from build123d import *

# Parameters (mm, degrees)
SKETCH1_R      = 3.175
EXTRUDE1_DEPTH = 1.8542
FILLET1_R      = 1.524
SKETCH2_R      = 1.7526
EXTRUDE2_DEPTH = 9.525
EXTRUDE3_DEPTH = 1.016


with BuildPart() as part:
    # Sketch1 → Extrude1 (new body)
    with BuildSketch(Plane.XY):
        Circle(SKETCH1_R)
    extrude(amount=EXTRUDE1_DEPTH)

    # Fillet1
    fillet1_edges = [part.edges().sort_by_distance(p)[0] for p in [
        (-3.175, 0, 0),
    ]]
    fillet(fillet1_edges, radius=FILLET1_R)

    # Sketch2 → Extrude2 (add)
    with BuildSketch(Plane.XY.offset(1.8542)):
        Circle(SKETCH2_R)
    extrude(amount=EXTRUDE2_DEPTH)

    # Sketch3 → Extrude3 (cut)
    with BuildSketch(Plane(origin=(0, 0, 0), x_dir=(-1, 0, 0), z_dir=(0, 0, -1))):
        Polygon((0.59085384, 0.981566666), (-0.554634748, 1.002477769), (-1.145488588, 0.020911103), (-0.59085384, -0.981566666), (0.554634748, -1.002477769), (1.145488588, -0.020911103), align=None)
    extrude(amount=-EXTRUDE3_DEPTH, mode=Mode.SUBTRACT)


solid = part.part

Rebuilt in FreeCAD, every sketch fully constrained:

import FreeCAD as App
import Part
import Sketcher

V = App.Vector
Q = App.Units.Quantity


def edges_at(feature, points):
    """Names of the edges that pass closest to the given points."""
    edges = feature.Shape.Edges
    near = lambda p: min(range(len(edges)), key=lambda i: edges[i].distToShape(Part.Vertex(*p))[0])
    return sorted({f"Edge{near(p) + 1}" for p in points})

doc = App.newDocument("Part")
params = doc.addObject("Spreadsheet::Sheet", "Params")
for row, (alias, value) in enumerate([
    ("sketch1_diameter", "0.25 in"),
    ("pad1_length", "0.073 in"),
    ("fillet_radius", "0.06 in"),
    ("sketch2_diameter", "0.138 in"),
    ("pad2_length", "0.375 in"),
    ("pocket1_length", "0.04 in"),
], start=1):
    params.set(f"A{row}", alias)
    params.set(f"B{row}", "=" + value)
    params.setAlias(f"B{row}", alias)

body = doc.addObject("PartDesign::Body", "Body")

# Sketch on XY plane
sketch1 = body.newObject("Sketcher::SketchObject", "Sketch")
sketch1.AttachmentSupport = (doc.getObject("XY_Plane"), [""])
sketch1.MapMode = "FlatFace"
sketch1.addGeometry(Part.Circle(V(0, 0, 0), V(0, 0, 1), 3.175), False)
sketch1.addConstraint(Sketcher.Constraint("Coincident", 0, 3, -1, 1))
sketch1.addConstraint(Sketcher.Constraint("Diameter", 0, Q("0.25 in")))
sketch1.setExpression("Constraints[1]", "Params.sketch1_diameter")
pad1 = body.newObject("PartDesign::Pad", "Pad")
pad1.Profile = sketch1
pad1.setExpression("Length", "Params.pad1_length")
doc.recompute()

fillet = body.newObject("PartDesign::Fillet", "Fillet")
fillet.Base = (pad1, edges_at(pad1, [(-3.175, 0, 0)]))
fillet.setExpression("Radius", "Params.fillet_radius")

# Sketch on XY plane
sketch2 = body.newObject("Sketcher::SketchObject", "Sketch001")
sketch2.AttachmentSupport = (doc.getObject("XY_Plane"), [""])
sketch2.MapMode = "FlatFace"
sketch2.AttachmentOffset = App.Placement(V(0, 0, 0.073 * 25.4), App.Rotation())
sketch2.addGeometry(Part.Circle(V(0, 0, 0), V(0, 0, 1), 1.7526), False)
sketch2.addConstraint(Sketcher.Constraint("Coincident", 0, 3, -1, 1))
sketch2.addConstraint(Sketcher.Constraint("Diameter", 0, Q("0.138 in")))
sketch2.setExpression("Constraints[1]", "Params.sketch2_diameter")
pad2 = body.newObject("PartDesign::Pad", "Pad001")
pad2.Profile = sketch2
pad2.setExpression("Length", "Params.pad2_length")

# Sketch on XY plane
sketch3 = body.newObject("Sketcher::SketchObject", "Sketch002")
sketch3.AttachmentSupport = (doc.getObject("XY_Plane"), [""])
sketch3.MapMode = "FlatFace"
sketch3.addGeometry(Part.LineSegment(V(-0.590854, 0.981567, 0), V(0.554635, 1.002478, 0)), False)
sketch3.addGeometry(Part.LineSegment(V(0.554635, 1.002478, 0), V(1.145489, 0.020911, 0)), False)
sketch3.addGeometry(Part.LineSegment(V(1.145489, 0.020911, 0), V(0.590854, -0.981567, 0)), False)
sketch3.addGeometry(Part.LineSegment(V(0.590854, -0.981567, 0), V(-0.554635, -1.002478, 0)), False)
sketch3.addGeometry(Part.LineSegment(V(-0.554635, -1.002478, 0), V(-1.145489, -0.020911, 0)), False)
sketch3.addGeometry(Part.LineSegment(V(-1.145489, -0.020911, 0), V(-0.590854, 0.981567, 0)), False)
sketch3.addConstraint(Sketcher.Constraint("Coincident", 0, 2, 1, 1))
sketch3.addConstraint(Sketcher.Constraint("Coincident", 1, 2, 2, 1))
sketch3.addConstraint(Sketcher.Constraint("Coincident", 2, 2, 3, 1))
sketch3.addConstraint(Sketcher.Constraint("Coincident", 3, 2, 4, 1))
sketch3.addConstraint(Sketcher.Constraint("Coincident", 4, 2, 5, 1))
sketch3.addConstraint(Sketcher.Constraint("Coincident", 5, 2, 0, 1))
sketch3.addConstraint(Sketcher.Constraint("Symmetric", 0, 2, 3, 2, -1, 1))
sketch3.addConstraint(Sketcher.Constraint("Symmetric", 1, 2, 4, 2, -1, 1))
sketch3.addConstraint(Sketcher.Constraint("Symmetric", 2, 2, 5, 2, -1, 1))
sketch3.addConstraint(Sketcher.Constraint("Equal", 0, 1))
sketch3.addConstraint(Sketcher.Constraint("Equal", 1, 2))
sketch3.addConstraint(Sketcher.Constraint("Distance", 0, Q("1.145679 mm")))
sketch3.addConstraint(Sketcher.Constraint("DistanceX", -1, 1, 1, 2, Q("1.145489 mm")))
sketch3.addConstraint(Sketcher.Constraint("DistanceY", -1, 1, 1, 2, Q("0.020911 mm")))
sketch3.addConstraint(Sketcher.Constraint("DistanceX", 0, 2, 2, 2, Q("0.036219 mm")))
pocket1 = body.newObject("PartDesign::Pocket", "Pocket")
pocket1.Profile = sketch3
pocket1.setExpression("Length", "Params.pocket1_length")
pocket1.Reversed = True

doc.recompute()
